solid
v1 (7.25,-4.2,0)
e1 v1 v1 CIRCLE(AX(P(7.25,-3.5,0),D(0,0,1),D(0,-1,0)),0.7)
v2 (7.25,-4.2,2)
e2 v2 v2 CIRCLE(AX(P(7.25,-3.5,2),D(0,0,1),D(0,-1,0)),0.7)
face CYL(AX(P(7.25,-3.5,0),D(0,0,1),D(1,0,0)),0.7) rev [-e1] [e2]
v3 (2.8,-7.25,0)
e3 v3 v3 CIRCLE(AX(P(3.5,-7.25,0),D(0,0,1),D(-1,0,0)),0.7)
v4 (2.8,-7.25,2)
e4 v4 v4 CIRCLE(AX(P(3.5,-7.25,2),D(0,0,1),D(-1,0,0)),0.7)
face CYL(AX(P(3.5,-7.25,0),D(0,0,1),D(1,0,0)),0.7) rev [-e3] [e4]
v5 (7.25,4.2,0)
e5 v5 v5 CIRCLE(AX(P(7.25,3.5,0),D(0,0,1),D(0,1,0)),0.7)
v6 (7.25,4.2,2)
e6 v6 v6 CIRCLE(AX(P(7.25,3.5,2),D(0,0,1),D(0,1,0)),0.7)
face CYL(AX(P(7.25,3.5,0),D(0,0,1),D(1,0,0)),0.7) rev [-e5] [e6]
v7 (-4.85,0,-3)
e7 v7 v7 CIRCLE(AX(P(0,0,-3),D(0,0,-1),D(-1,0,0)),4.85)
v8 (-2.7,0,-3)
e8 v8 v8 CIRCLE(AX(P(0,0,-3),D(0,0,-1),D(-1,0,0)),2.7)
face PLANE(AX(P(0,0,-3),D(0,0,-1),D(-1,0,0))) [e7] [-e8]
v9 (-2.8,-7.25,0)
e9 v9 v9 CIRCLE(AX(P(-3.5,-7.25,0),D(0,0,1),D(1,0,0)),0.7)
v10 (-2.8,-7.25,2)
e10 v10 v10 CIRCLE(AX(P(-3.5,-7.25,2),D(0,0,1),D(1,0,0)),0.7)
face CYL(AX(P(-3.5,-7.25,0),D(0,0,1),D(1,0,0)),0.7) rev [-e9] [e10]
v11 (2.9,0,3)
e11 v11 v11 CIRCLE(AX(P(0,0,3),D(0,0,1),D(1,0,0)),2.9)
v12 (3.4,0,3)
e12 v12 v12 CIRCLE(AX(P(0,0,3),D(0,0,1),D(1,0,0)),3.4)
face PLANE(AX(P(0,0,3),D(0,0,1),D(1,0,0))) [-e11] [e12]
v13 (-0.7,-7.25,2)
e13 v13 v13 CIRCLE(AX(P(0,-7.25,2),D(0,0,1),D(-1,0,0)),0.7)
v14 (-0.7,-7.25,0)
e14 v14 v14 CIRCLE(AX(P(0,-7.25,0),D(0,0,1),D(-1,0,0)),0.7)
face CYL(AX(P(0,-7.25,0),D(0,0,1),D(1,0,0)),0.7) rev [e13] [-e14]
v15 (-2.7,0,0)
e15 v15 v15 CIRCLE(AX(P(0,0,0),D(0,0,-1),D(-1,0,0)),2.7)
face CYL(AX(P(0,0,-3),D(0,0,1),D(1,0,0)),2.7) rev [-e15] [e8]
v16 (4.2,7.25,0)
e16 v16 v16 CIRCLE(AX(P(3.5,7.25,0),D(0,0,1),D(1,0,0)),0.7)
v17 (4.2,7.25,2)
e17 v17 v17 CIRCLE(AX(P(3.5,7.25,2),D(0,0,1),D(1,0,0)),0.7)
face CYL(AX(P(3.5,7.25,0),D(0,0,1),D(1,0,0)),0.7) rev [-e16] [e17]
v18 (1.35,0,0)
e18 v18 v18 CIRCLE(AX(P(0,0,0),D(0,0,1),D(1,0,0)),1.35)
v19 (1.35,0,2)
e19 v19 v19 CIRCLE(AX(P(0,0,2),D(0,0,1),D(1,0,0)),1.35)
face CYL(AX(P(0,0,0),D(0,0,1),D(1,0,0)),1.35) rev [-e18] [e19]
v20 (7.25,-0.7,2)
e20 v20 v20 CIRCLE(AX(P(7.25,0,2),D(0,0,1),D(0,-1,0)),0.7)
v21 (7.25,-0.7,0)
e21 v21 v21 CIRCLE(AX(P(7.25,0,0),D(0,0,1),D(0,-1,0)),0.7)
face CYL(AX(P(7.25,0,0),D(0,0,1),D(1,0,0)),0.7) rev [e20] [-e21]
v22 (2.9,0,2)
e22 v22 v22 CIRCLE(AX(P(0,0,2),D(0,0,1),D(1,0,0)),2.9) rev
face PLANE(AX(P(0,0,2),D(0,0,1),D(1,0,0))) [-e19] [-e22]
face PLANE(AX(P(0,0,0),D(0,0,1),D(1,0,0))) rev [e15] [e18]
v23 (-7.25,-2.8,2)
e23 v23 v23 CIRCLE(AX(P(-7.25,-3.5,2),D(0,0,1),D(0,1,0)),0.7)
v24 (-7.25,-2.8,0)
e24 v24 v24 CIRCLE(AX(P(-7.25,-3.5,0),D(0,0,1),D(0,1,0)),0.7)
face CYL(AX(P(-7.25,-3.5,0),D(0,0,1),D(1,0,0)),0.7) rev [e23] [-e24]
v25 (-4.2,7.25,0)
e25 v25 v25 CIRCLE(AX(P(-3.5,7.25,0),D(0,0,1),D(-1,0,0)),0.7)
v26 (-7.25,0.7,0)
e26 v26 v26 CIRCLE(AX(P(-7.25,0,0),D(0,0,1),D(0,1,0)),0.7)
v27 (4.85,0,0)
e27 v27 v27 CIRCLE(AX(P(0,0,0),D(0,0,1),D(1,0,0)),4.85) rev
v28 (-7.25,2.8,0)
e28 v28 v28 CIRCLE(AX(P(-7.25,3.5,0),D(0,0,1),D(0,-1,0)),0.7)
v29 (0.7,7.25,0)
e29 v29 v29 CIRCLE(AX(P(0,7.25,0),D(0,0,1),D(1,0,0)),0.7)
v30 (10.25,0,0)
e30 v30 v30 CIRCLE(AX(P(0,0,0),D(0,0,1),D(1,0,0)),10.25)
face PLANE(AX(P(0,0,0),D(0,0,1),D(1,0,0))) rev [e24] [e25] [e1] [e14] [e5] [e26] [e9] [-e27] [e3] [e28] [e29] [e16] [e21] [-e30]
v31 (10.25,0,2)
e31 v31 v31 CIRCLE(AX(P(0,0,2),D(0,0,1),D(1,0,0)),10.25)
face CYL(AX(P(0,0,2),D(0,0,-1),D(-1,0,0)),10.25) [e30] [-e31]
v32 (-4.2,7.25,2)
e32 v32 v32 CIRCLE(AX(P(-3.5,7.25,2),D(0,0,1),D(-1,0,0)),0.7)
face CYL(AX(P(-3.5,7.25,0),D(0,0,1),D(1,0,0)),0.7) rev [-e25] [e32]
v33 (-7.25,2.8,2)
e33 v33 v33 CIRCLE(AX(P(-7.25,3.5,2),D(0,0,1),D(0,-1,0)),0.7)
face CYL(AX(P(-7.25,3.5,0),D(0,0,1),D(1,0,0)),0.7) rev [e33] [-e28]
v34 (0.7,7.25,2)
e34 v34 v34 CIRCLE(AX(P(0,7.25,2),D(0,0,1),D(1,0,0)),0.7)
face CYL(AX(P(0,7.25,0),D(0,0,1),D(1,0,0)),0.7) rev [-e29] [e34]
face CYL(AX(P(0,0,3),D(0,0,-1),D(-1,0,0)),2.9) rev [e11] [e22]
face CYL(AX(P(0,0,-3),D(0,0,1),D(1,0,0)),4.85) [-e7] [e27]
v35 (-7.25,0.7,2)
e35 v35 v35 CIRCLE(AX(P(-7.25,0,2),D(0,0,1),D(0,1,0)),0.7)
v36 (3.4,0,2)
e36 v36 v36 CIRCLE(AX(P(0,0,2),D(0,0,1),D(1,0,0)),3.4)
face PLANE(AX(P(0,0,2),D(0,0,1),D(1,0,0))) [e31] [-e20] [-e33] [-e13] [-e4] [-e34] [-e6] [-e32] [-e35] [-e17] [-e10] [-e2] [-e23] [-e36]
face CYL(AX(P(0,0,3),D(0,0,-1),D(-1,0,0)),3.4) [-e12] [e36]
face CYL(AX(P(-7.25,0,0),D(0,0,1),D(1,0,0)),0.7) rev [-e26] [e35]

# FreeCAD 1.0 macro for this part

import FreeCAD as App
import Part
import Sketcher

doc = App.newDocument("Part")
params = doc.addObject("Spreadsheet::Sheet", "Params")
for row, (alias, value) in enumerate([
    ("sketch1_diameter", "20.5 mm"),
    ("pad1_length", "2 mm"),
    ("sketch2_diameter", "6.8 mm"),
    ("sketch2_diameter2", "5.8 mm"),
    ("pad2_length", "1 mm"),
    ("sketch3_diameter", "2.7 mm"),
    ("sketch4_diameter", "1.4 mm"),
    ("sketch5_diameter", "9.7 mm"),
    ("sketch5_diameter2", "5.4 mm"),
    ("pad3_length", "3 mm"),
], start=1):
    params.set(f"A{row}", alias)
    params.set(f"B{row}", "=" + value)
    params.setAlias(f"B{row}", alias)

body = doc.addObject("PartDesign::Body", "Body")

sketch1 = doc.addObject("Sketcher::SketchObject", "Sketch")
body.addObject(sketch1)
sketch1.AttachmentSupport = (doc.XY_Plane, [""])
sketch1.MapMode = "FlatFace"
sketch1.addGeometry(Part.Circle(App.Vector(0, 0, 0), App.Vector(0, 0, 1), 10.25), False)
sketch1.addConstraint(Sketcher.Constraint("Coincident", 0, 3, -1, 1))
sketch1.addConstraint(Sketcher.Constraint("Diameter", 0, 20.5))
sketch1.setExpression("Constraints[1]", "Params.sketch1_diameter")
pad1 = doc.addObject("PartDesign::Pad", "Pad")
body.addObject(pad1)
pad1.Profile = sketch1
pad1.setExpression("Length", "Params.pad1_length")

sketch2 = doc.addObject("Sketcher::SketchObject", "Sketch001")
body.addObject(sketch2)
sketch2.AttachmentSupport = (doc.XY_Plane, [""])
sketch2.MapMode = "FlatFace"
sketch2.AttachmentOffset = App.Placement(App.Vector(0, 0, 2), App.Rotation())
sketch2.addGeometry(Part.Circle(App.Vector(0, 0, 0), App.Vector(0, 0, 1), 3.4), False)
sketch2.addGeometry(Part.Circle(App.Vector(0, 0, 0), App.Vector(0, 0, 1), 2.9), False)
sketch2.addConstraint(Sketcher.Constraint("Coincident", 0, 3, -1, 1))
sketch2.addConstraint(Sketcher.Constraint("Coincident", 1, 3, -1, 1))
sketch2.addConstraint(Sketcher.Constraint("Diameter", 0, 6.8))
sketch2.addConstraint(Sketcher.Constraint("Diameter", 1, 5.8))
sketch2.setExpression("Constraints[2]", "Params.sketch2_diameter")
sketch2.setExpression("Constraints[3]", "Params.sketch2_diameter2")
pad2 = doc.addObject("PartDesign::Pad", "Pad001")
body.addObject(pad2)
pad2.Profile = sketch2
pad2.setExpression("Length", "Params.pad2_length")

sketch3 = doc.addObject("Sketcher::SketchObject", "Sketch002")
body.addObject(sketch3)
sketch3.AttachmentSupport = (doc.XY_Plane, [""])
sketch3.MapMode = "FlatFace"
sketch3.AttachmentOffset = App.Placement(App.Vector(0, 0, 2), App.Rotation())
sketch3.addGeometry(Part.Circle(App.Vector(0, 0, 0), App.Vector(0, 0, 1), 1.35), False)
sketch3.addConstraint(Sketcher.Constraint("Coincident", 0, 3, -1, 1))
sketch3.addConstraint(Sketcher.Constraint("Diameter", 0, 2.7))
sketch3.setExpression("Constraints[1]", "Params.sketch3_diameter")
pocket1 = doc.addObject("PartDesign::Pocket", "Pocket")
body.addObject(pocket1)
pocket1.Profile = sketch3
pocket1.Type = "ThroughAll"

sketch4 = doc.addObject("Sketcher::SketchObject", "Sketch003")
body.addObject(sketch4)
sketch4.AttachmentSupport = (doc.XY_Plane, [""])
sketch4.MapMode = "FlatFace"
sketch4.AttachmentOffset = App.Placement(App.Vector(0, 0, 2), App.Rotation())
sketch4.addGeometry(Part.Circle(App.Vector(0, 7.25, 0), App.Vector(0, 0, 1), 0.7), False)
sketch4.addGeometry(Part.Circle(App.Vector(3.5, 7.25, 0), App.Vector(0, 0, 1), 0.7), False)
sketch4.addGeometry(Part.Circle(App.Vector(-3.5, 7.25, 0), App.Vector(0, 0, 1), 0.7), False)
sketch4.addGeometry(Part.Circle(App.Vector(-3.5, -7.25, 0), App.Vector(0, 0, 1), 0.7), False)
sketch4.addGeometry(Part.Circle(App.Vector(3.5, -7.25, 0), App.Vector(0, 0, 1), 0.7), False)
sketch4.addGeometry(Part.Circle(App.Vector(0, -7.25, 0), App.Vector(0, 0, 1), 0.7), False)
sketch4.addConstraint(Sketcher.Constraint("Equal", 0, 1))
sketch4.addConstraint(Sketcher.Constraint("Equal", 1, 2))
sketch4.addConstraint(Sketcher.Constraint("Equal", 2, 3))
sketch4.addConstraint(Sketcher.Constraint("Equal", 3, 4))
sketch4.addConstraint(Sketcher.Constraint("Equal", 4, 5))
sketch4.addConstraint(Sketcher.Constraint("Symmetric", 1, 3, 3, 3, -1, 1))
sketch4.addConstraint(Sketcher.Constraint("Symmetric", 2, 3, 4, 3, -1, 1))
sketch4.addConstraint(Sketcher.Constraint("Symmetric", 0, 3, 5, 3, -1, 1))
sketch4.addConstraint(Sketcher.Constraint("Symmetric", 1, 3, 2, 3, -2))
sketch4.addConstraint(Sketcher.Constraint("PointOnObject", 0, 3, -2))
sketch4.addConstraint(Sketcher.Constraint("Horizontal", 0, 3, 1, 3))
sketch4.addConstraint(Sketcher.Constraint("Diameter", 0, 1.4))
sketch4.addConstraint(Sketcher.Constraint("DistanceX", 2, 3, 1, 3, 7.0))
sketch4.addConstraint(Sketcher.Constraint("DistanceY", 3, 3, 2, 3, 14.5))
sketch4.setExpression("Constraints[11]", "Params.sketch4_diameter")
pocket2 = doc.addObject("PartDesign::Pocket", "Pocket001")
body.addObject(pocket2)
pocket2.Profile = sketch4
pocket2.Type = "ThroughAll"
doc.recompute()

polarpattern = doc.addObject("PartDesign::PolarPattern", "PolarPattern")
body.addObject(polarpattern)
polarpattern.Originals = [pocket2]
polarpattern.Axis = (doc.Z_Axis, [""])
polarpattern.Angle = 360
polarpattern.Occurrences = 4
body.Tip = polarpattern

sketch5 = doc.addObject("Sketcher::SketchObject", "Sketch004")
body.addObject(sketch5)
sketch5.AttachmentSupport = (doc.XY_Plane, [""])
sketch5.MapMode = "FlatFace"
sketch5.addGeometry(Part.Circle(App.Vector(0, 0, 0), App.Vector(0, 0, 1), 4.85), False)
sketch5.addGeometry(Part.Circle(App.Vector(0, 0, 0), App.Vector(0, 0, 1), 2.7), False)
sketch5.addConstraint(Sketcher.Constraint("Coincident", 0, 3, -1, 1))
sketch5.addConstraint(Sketcher.Constraint("Coincident", 1, 3, -1, 1))
sketch5.addConstraint(Sketcher.Constraint("Diameter", 0, 9.7))
sketch5.addConstraint(Sketcher.Constraint("Diameter", 1, 5.4))
sketch5.setExpression("Constraints[2]", "Params.sketch5_diameter")
sketch5.setExpression("Constraints[3]", "Params.sketch5_diameter2")
pad3 = doc.addObject("PartDesign::Pad", "Pad002")
body.addObject(pad3)
pad3.Profile = sketch5
pad3.setExpression("Length", "Params.pad3_length")
pad3.Reversed = True

doc.recompute()
